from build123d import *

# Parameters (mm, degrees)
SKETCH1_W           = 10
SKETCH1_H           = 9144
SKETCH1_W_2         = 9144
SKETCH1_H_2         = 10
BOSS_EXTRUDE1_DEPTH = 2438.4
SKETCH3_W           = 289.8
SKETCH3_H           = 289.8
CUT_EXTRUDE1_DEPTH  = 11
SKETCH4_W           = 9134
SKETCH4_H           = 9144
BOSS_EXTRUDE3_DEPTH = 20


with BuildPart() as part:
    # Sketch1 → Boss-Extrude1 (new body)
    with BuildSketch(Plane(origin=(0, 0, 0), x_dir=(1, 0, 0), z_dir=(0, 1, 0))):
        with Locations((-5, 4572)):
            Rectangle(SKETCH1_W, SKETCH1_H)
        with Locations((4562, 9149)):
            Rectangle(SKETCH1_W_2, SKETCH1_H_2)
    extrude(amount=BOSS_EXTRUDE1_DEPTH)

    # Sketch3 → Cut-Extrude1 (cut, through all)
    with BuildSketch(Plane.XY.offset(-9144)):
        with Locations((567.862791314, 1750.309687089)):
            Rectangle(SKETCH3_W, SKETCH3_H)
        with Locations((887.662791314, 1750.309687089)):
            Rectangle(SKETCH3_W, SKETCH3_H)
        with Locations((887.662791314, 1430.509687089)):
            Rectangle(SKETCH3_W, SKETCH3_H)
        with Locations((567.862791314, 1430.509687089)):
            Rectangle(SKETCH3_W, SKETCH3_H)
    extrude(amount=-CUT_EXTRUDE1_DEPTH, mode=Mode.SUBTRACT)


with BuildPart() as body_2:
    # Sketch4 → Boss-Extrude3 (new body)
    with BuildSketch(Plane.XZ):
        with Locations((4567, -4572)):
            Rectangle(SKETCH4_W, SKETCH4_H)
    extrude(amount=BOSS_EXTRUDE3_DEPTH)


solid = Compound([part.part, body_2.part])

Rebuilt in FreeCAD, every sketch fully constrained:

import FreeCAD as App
import Part
import Sketcher
from FreeCAD import Vector
Q = App.Units.Quantity


def add_polygon(sketch, points):
    """Adds a closed chain of lines whose ends are joined by coincident constraints."""
    first, n = sketch.GeometryCount, len(points)
    for a, b in zip(points, points[1:] + points[:1]):
        sketch.addGeometry(Part.LineSegment(App.Vector(*a, 0), App.Vector(*b, 0)), False)
    for i in range(n):
        sketch.addConstraint(Sketcher.Constraint("Coincident", first + i, 2, first + (i + 1) % n, 1))

doc = App.newDocument("Part")
params = doc.addObject("Spreadsheet::Sheet", "Params")
for row, (alias, value) in enumerate([
    ("sketch1_width", "10 mm"),
    ("sketch1_width2", "9134 mm"),
    ("pad1_length", "2438.4 mm"),
    ("sketch2_width", "289.8 mm"),
    ("sketch3_width", "9134 mm"),
    ("sketch3_height", "9144 mm"),
    ("pad2_length", "20 mm"),
], start=1):
    params.set(f"A{row}", alias)
    params.set(f"B{row}", "=" + value)
    params.setAlias(f"B{row}", alias)

body = doc.addObject("PartDesign::Body", "Body")

# Sketch on XZ plane
sketch1 = body.newObject("Sketcher::SketchObject", "Sketch")
sketch1.AttachmentSupport = (doc.getObject("XZ_Plane"), [""])
sketch1.MapMode = "FlatFace"
add_polygon(sketch1, [(-10, 0), (0, 0), (0, -9144), (9134, -9144), (9134, -9154), (-10, -9154)])  # lines 0-5
sketch1.addConstraint([
    Sketcher.Constraint("Horizontal", 0),
    Sketcher.Constraint("Vertical", 1),
    Sketcher.Constraint("Horizontal", 2),
    Sketcher.Constraint("Vertical", 3),
    Sketcher.Constraint("Horizontal", 4),
    Sketcher.Constraint("Vertical", 5),
    Sketcher.Constraint("Coincident", 0, 2, -1, 1),
    Sketcher.Constraint("Equal", 4, 1),
    Sketcher.Constraint("Equal", 0, 3),
    Sketcher.Constraint("DistanceX", 0, 1, 0, 2, Q("10 mm")),
    Sketcher.Constraint("DistanceX", 2, 1, 2, 2, Q("9134 mm")),
])
sketch1.setExpression("Constraints[15]", "Params.sketch1_width")
sketch1.setExpression("Constraints[16]", "Params.sketch1_width2")
pad1 = body.newObject("PartDesign::Pad", "Pad")
pad1.Profile = sketch1
pad1.setExpression("Length", "Params.pad1_length")
pad1.Reversed = True

# Sketch on XY plane
sketch2 = body.newObject("Sketcher::SketchObject", "Sketch001")
sketch2.AttachmentSupport = (doc.getObject("XY_Plane"), [""])
sketch2.MapMode = "FlatFace"
sketch2.AttachmentOffset = App.Placement(Vector(0, 0, -9144), App.Rotation())
add_polygon(sketch2, [(423, 1895), (423, 1605), (713, 1605), (713, 1895)])  # lines 0-3
add_polygon(sketch2, [(743, 1895), (743, 1605), (1033, 1605), (1033, 1895)])  # lines 4-7
add_polygon(sketch2, [(743, 1575), (743, 1286), (1033, 1286), (1033, 1575)])  # lines 8-11
add_polygon(sketch2, [(423, 1575), (423, 1286), (713, 1286), (713, 1575)])  # lines 12-15
sketch2.addConstraint([
    Sketcher.Constraint("Vertical", 0),
    Sketcher.Constraint("Horizontal", 1),
    Sketcher.Constraint("Vertical", 2),
    Sketcher.Constraint("Horizontal", 3),
    Sketcher.Constraint("Vertical", 4),
    Sketcher.Constraint("Horizontal", 5),
    Sketcher.Constraint("Vertical", 6),
    Sketcher.Constraint("Horizontal", 7),
    Sketcher.Constraint("Vertical", 8),
    Sketcher.Constraint("Horizontal", 9),
    Sketcher.Constraint("Vertical", 10),
    Sketcher.Constraint("Horizontal", 11),
    Sketcher.Constraint("Vertical", 12),
    Sketcher.Constraint("Horizontal", 13),
    Sketcher.Constraint("Vertical", 14),
    Sketcher.Constraint("Horizontal", 15),
    Sketcher.Constraint("Horizontal", 1, 2, 4, 2),
    Sketcher.Constraint("Horizontal", 3, 2, 6, 2),
    Sketcher.Constraint("Horizontal", 9, 2, 12, 2),
    Sketcher.Constraint("Horizontal", 11, 2, 14, 2),
    Sketcher.Constraint("Vertical", 7, 2, 8, 2),
    Sketcher.Constraint("Vertical", 6, 2, 9, 2),
    Sketcher.Constraint("Vertical", 3, 2, 12, 2),
    Sketcher.Constraint("Vertical", 2, 2, 13, 2),
    Sketcher.Constraint("Equal", 3, 5),
    Sketcher.Constraint("Equal", 15, 0),
    Sketcher.Constraint("Equal", 6, 8),
    Sketcher.Constraint("DistanceX", 1, 1, 1, 2, Q("289.8 mm")),
    Sketcher.Constraint("DistanceX", 1, 2, 4, 2, Q("30 mm")),
    Sketcher.Constraint("DistanceY", 10, 2, 5, 2, Q("30 mm")),
    Sketcher.Constraint("DistanceX", -1, 1, 0, 2, Q("422.962791 mm")),
    Sketcher.Constraint("DistanceY", -1, 1, 0, 2, Q("1605.409687 mm")),
])
sketch2.setExpression("Constraints[43]", "Params.sketch2_width")
pocket1 = body.newObject("PartDesign::Pocket", "Pocket")
pocket1.Profile = sketch2
pocket1.Type = "ThroughAll"
body2 = doc.addObject("PartDesign::Body", "Body001")

# Sketch on XZ plane
sketch3 = body2.newObject("Sketcher::SketchObject", "Sketch002")
sketch3.AttachmentSupport = (doc.getObject("XZ_Plane001"), [""])
sketch3.MapMode = "FlatFace"
add_polygon(sketch3, [(0, 0), (0, -9144), (9134, -9144), (9134, 0)])  # lines 0-3
sketch3.addConstraint([
    Sketcher.Constraint("Vertical", 0),
    Sketcher.Constraint("Horizontal", 1),
    Sketcher.Constraint("Vertical", 2),
    Sketcher.Constraint("Horizontal", 3),
    Sketcher.Constraint("Coincident", 3, 2, -1, 1),
    Sketcher.Constraint("DistanceX", 1, 1, 1, 2, Q("9134 mm")),
    Sketcher.Constraint("DistanceY", 0, 2, 0, 1, Q("9144 mm")),
])
sketch3.setExpression("Constraints[9]", "Params.sketch3_width")
sketch3.setExpression("Constraints[10]", "Params.sketch3_height")
pad2 = body2.newObject("PartDesign::Pad", "Pad001")
pad2.Profile = sketch3
pad2.setExpression("Length", "Params.pad2_length")

doc.recompute()
